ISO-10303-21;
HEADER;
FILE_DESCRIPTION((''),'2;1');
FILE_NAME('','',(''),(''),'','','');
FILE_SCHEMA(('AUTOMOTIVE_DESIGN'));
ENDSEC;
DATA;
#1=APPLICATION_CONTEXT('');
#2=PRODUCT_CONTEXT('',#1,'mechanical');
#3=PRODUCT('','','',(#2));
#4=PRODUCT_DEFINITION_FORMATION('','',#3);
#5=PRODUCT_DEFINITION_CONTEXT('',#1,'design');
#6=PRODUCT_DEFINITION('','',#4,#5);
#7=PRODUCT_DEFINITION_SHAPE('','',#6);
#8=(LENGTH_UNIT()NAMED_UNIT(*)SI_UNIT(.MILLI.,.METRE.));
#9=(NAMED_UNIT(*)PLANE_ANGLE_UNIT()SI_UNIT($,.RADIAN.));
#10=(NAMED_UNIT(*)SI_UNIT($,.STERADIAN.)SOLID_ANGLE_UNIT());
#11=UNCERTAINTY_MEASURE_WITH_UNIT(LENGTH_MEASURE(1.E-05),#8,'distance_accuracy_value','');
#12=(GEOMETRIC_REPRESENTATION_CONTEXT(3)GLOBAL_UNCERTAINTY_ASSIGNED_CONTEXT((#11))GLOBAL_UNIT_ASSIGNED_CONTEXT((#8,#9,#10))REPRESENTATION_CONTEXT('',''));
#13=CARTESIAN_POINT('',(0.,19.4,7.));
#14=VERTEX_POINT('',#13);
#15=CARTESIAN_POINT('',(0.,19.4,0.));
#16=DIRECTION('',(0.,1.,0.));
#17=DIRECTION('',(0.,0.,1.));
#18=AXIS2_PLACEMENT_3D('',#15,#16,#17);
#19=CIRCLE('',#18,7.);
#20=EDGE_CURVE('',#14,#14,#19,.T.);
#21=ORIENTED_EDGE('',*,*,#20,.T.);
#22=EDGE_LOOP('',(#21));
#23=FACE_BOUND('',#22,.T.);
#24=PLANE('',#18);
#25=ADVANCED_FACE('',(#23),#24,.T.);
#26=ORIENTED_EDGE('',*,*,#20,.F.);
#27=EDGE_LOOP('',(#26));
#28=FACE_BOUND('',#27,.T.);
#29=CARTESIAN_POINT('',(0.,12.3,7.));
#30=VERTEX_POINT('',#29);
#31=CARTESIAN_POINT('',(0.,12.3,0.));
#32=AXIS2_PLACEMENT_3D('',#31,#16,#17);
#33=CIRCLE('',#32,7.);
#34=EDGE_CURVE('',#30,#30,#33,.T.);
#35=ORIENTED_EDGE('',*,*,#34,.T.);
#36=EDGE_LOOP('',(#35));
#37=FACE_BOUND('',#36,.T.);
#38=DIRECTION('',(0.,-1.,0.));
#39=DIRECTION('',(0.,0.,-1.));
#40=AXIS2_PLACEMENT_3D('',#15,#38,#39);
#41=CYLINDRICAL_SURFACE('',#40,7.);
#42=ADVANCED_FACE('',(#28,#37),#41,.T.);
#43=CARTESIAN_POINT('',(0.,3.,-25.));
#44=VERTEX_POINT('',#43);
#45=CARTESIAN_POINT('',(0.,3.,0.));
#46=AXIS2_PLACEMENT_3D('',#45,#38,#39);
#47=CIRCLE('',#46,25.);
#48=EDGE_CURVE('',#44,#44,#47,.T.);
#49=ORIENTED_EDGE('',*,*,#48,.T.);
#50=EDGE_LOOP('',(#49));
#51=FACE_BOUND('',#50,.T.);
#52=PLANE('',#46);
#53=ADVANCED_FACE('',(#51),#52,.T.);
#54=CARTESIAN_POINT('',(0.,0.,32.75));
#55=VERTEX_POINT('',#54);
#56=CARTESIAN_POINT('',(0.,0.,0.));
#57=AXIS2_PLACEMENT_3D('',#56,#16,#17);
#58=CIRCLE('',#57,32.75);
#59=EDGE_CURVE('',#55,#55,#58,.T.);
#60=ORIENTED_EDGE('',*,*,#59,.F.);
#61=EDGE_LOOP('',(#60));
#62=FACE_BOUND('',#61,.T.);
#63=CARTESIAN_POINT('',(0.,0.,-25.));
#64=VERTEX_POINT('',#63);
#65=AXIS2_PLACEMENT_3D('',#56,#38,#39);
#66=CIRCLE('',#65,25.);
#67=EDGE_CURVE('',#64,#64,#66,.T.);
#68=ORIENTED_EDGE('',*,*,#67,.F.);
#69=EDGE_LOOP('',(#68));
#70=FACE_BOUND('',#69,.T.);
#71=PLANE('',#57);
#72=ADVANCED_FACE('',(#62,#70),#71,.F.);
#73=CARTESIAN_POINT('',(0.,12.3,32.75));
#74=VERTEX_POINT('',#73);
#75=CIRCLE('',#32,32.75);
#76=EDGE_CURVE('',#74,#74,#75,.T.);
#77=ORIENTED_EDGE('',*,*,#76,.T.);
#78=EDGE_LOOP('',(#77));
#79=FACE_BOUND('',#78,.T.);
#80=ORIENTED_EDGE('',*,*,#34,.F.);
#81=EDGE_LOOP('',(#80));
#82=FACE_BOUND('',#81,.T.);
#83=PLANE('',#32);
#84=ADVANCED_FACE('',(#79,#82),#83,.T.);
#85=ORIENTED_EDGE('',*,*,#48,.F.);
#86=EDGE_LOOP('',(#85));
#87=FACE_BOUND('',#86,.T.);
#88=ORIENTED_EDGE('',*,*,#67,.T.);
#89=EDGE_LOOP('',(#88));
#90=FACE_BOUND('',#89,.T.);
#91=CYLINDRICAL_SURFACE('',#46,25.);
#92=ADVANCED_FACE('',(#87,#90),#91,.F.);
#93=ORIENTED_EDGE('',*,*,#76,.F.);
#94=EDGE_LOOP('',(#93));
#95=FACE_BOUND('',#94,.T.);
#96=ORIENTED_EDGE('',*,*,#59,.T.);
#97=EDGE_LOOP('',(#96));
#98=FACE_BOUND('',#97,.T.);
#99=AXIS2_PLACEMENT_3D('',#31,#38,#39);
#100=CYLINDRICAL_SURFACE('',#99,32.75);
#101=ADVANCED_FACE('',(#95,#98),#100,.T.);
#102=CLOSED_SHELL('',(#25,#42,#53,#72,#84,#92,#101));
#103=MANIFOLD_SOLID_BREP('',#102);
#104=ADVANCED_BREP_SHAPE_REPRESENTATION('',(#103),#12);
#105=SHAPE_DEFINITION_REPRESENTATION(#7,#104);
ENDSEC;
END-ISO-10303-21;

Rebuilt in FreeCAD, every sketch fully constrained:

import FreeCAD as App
import Part
import Sketcher

V = App.Vector

doc = App.newDocument("Part")
body = doc.addObject("PartDesign::Body", "Body")

# Sketch on XZ plane
sketch1 = body.newObject("Sketcher::SketchObject", "Sketch")
sketch1.AttachmentSupport = (doc.getObject("XZ_Plane"), [""])
sketch1.MapMode = "FlatFace"
sketch1.addGeometry(Part.Circle(V(0, 0, 0), V(0, 0, 1), 33), False)
sketch1.addConstraint(Sketcher.Constraint("Coincident", 0, 3, -1, 1))
sketch1.addConstraint(Sketcher.Constraint("Diameter", 0, 65.5))
pad1 = body.newObject("PartDesign::Pad", "Pad")
pad1.Profile = sketch1
pad1.Length = 12.3
pad1.Reversed = True

# Sketch on XZ plane
sketch2 = body.newObject("Sketcher::SketchObject", "Sketch001")
sketch2.AttachmentSupport = (doc.getObject("XZ_Plane"), [""])
sketch2.MapMode = "FlatFace"
sketch2.AttachmentOffset = App.Placement(V(0, 0, -12.3), App.Rotation())
sketch2.addGeometry(Part.Circle(V(0, 0, 0), V(0, 0, 1), 7), False)
sketch2.addConstraint(Sketcher.Constraint("Coincident", 0, 3, -1, 1))
sketch2.addConstraint(Sketcher.Constraint("Diameter", 0, 14.0))
pad2 = body.newObject("PartDesign::Pad", "Pad001")
pad2.Profile = sketch2
pad2.Length = 7.1
pad2.Reversed = True

# Sketch on XZ plane
sketch3 = body.newObject("Sketcher::SketchObject", "Sketch002")
sketch3.AttachmentSupport = (doc.getObject("XZ_Plane"), [""])
sketch3.MapMode = "FlatFace"
sketch3.addGeometry(Part.Circle(V(0, 0, 0), V(0, 0, 1), 25), False)
sketch3.addConstraint(Sketcher.Constraint("Coincident", 0, 3, -1, 1))
sketch3.addConstraint(Sketcher.Constraint("Diameter", 0, 50.0))
pocket1 = body.newObject("PartDesign::Pocket", "Pocket")
pocket1.Profile = sketch3
pocket1.Length = 3

doc.recompute()
